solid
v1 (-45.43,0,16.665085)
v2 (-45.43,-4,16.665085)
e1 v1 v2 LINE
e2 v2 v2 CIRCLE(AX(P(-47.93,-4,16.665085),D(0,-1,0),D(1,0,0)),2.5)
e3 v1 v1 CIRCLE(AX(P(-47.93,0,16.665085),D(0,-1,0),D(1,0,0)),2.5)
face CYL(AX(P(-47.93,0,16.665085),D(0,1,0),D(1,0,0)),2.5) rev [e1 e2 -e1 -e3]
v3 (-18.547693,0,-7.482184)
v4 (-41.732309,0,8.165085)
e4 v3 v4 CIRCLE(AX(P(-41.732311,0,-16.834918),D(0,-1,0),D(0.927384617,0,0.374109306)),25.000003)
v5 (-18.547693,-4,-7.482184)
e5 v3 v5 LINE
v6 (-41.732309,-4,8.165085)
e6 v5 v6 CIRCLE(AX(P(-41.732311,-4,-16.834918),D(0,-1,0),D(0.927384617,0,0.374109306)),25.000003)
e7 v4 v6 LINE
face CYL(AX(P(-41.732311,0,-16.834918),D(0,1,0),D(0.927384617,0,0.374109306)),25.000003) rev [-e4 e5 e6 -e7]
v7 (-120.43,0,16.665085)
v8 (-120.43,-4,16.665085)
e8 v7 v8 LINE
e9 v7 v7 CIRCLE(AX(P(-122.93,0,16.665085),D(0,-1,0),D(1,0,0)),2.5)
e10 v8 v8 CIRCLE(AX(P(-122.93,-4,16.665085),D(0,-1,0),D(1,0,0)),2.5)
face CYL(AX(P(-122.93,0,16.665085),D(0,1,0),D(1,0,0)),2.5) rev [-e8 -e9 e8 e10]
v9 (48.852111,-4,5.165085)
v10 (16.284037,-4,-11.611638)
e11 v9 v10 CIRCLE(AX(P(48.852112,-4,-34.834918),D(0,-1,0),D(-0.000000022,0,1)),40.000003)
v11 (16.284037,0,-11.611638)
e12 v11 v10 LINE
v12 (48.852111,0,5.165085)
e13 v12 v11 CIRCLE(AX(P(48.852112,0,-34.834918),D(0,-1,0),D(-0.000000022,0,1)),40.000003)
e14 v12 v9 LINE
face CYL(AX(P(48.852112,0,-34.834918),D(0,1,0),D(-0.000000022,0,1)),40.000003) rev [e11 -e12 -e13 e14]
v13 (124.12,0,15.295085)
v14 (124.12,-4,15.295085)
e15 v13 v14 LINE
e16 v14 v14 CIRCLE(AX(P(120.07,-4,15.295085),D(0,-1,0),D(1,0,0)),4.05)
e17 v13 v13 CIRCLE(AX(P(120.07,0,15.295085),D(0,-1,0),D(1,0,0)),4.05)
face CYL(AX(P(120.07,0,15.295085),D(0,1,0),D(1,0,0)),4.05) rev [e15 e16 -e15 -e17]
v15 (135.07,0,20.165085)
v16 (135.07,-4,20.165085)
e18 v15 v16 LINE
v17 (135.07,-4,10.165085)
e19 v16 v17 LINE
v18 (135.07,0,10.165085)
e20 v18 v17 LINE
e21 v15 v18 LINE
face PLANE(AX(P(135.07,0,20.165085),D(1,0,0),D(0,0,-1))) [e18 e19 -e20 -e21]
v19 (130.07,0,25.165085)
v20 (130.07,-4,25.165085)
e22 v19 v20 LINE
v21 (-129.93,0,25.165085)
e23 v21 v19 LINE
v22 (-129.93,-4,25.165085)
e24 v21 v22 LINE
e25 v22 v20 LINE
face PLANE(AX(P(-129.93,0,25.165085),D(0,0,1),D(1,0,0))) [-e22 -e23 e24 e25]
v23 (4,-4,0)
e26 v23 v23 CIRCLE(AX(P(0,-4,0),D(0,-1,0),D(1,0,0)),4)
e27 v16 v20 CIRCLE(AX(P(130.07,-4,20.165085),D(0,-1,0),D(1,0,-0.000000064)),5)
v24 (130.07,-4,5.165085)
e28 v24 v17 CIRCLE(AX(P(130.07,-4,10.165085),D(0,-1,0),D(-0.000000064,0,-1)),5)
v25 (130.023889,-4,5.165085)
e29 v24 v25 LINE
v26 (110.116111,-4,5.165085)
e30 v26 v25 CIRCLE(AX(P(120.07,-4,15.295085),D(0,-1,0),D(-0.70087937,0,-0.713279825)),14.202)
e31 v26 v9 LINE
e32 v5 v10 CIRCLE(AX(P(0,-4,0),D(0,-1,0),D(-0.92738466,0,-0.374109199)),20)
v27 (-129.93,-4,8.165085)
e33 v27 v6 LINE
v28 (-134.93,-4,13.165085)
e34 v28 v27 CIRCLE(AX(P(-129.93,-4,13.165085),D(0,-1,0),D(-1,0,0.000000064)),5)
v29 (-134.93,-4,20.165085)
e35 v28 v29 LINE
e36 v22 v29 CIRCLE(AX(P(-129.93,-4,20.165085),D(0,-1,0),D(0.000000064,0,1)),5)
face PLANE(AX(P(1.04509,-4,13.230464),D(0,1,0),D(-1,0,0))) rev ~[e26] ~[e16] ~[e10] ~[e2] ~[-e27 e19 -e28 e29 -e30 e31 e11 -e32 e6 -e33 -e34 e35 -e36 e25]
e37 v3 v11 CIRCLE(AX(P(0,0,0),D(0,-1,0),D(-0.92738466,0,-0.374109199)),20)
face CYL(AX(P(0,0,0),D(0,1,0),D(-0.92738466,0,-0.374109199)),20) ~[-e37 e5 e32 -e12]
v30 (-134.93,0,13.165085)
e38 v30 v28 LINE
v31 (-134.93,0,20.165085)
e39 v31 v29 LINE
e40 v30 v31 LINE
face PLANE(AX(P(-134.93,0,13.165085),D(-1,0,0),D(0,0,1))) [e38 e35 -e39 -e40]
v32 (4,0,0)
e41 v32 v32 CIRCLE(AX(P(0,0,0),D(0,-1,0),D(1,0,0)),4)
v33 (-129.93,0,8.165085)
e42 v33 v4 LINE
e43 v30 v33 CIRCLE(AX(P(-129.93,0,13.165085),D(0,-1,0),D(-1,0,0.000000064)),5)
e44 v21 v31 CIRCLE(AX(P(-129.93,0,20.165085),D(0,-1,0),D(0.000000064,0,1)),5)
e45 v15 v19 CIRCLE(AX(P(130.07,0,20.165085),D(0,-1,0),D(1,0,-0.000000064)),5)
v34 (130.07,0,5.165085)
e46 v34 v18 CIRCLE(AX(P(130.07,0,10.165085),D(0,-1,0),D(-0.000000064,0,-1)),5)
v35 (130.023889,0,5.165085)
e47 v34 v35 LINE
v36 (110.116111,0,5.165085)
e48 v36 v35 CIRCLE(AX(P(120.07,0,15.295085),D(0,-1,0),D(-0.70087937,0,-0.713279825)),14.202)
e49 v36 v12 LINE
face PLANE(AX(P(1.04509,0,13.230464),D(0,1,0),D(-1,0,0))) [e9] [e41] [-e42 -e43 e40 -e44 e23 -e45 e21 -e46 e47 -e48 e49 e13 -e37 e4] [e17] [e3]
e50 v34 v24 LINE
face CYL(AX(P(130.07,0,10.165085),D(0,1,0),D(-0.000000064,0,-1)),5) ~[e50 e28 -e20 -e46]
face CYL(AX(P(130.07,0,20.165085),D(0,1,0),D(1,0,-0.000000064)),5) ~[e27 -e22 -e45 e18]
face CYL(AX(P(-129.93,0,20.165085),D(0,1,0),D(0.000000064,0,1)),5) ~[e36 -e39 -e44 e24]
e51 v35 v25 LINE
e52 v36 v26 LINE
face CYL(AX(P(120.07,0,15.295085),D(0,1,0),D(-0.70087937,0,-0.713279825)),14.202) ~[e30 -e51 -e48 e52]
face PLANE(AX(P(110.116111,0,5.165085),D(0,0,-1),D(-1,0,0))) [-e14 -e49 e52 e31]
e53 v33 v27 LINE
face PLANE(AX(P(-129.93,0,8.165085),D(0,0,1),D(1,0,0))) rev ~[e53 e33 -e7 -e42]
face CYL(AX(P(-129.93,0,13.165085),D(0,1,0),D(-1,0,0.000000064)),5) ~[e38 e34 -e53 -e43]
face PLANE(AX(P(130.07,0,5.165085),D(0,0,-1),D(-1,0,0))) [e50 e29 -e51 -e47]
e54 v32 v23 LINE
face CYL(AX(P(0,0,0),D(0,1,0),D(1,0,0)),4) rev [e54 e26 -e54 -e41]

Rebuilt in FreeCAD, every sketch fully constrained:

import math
import FreeCAD as App
import Part
import Sketcher

doc = App.newDocument("Part")
body = doc.addObject("PartDesign::Body", "Body")

# Sketch on XZ plane
sketch1 = body.newObject("Sketcher::SketchObject", "Sketch")
sketch1.AttachmentSupport = (doc.getObject("XZ_Plane"), [""])
sketch1.MapMode = "FlatFace"
sketch1.addGeometry([
    Part.LineSegment(App.Vector(-134.93, 20.165, 0), App.Vector(-134.93, 13.165, 0)),  # 0
    Part.ArcOfCircle(Part.Circle(App.Vector(-129.93, 13.165, 0), App.Vector(0, 0, 1), 5), math.radians(180), math.radians(270)),  # 1
    Part.LineSegment(App.Vector(-129.93, 8.165, 0), App.Vector(-41.732, 8.165, 0)),  # 2
    Part.ArcOfCircle(Part.Circle(App.Vector(-41.732, -16.835, 0), App.Vector(0, 0, 1), 25), math.radians(22), math.radians(90)),  # 3
    Part.ArcOfCircle(Part.Circle(App.Vector(0, 0, 0), App.Vector(0, 0, 1), 20), math.radians(-158), math.radians(-35)),  # 4
    Part.ArcOfCircle(Part.Circle(App.Vector(48.852, -34.835, 0), App.Vector(0, 0, 1), 40), math.radians(90), math.radians(145)),  # 5
    Part.LineSegment(App.Vector(48.852, 5.165, 0), App.Vector(110.116, 5.165, 0)),  # 6
    Part.ArcOfCircle(Part.Circle(App.Vector(120.07, 15.295, 0), App.Vector(0, 0, 1), 14.202), math.radians(-134), math.radians(-46)),  # 7
    Part.LineSegment(App.Vector(130.024, 5.165, 0), App.Vector(130.07, 5.165, 0)),  # 8
    Part.ArcOfCircle(Part.Circle(App.Vector(130.07, 10.165, 0), App.Vector(0, 0, 1), 5), math.radians(-90), math.radians(0)),  # 9
    Part.LineSegment(App.Vector(135.07, 10.165, 0), App.Vector(135.07, 20.165, 0)),  # 10
    Part.ArcOfCircle(Part.Circle(App.Vector(130.07, 20.165, 0), App.Vector(0, 0, 1), 5), math.radians(0), math.radians(90)),  # 11
    Part.LineSegment(App.Vector(130.07, 25.165, 0), App.Vector(-129.93, 25.165, 0)),  # 12
    Part.ArcOfCircle(Part.Circle(App.Vector(-129.93, 20.165, 0), App.Vector(0, 0, 1), 5), math.radians(90), math.radians(180)),  # 13
    Part.Circle(App.Vector(0, 0, 0), App.Vector(0, 0, 1), 4),  # 14
    Part.Circle(App.Vector(120.07, 15.295, 0), App.Vector(0, 0, 1), 4.05),  # 15
    Part.Circle(App.Vector(-47.93, 16.665, 0), App.Vector(0, 0, 1), 2.5),  # 16
    Part.Circle(App.Vector(-122.93, 16.665, 0), App.Vector(0, 0, 1), 2.5),  # 17
], False)
sketch1.addConstraint([
    Sketcher.Constraint("Tangent", 0, 2, 1, 1),
    Sketcher.Constraint("Tangent", 1, 2, 2, 1),
    Sketcher.Constraint("Tangent", 2, 2, 3, 2),
    Sketcher.Constraint("Tangent", 3, 1, 4, 1),
    Sketcher.Constraint("Tangent", 4, 2, 5, 2),
    Sketcher.Constraint("Tangent", 5, 1, 6, 1),
    Sketcher.Constraint("Coincident", 6, 2, 7, 1),
    Sketcher.Constraint("Coincident", 7, 2, 8, 1),
    Sketcher.Constraint("Tangent", 8, 2, 9, 1),
    Sketcher.Constraint("Tangent", 9, 2, 10, 1),
    Sketcher.Constraint("Tangent", 10, 2, 11, 1),
    Sketcher.Constraint("Tangent", 11, 2, 12, 1),
    Sketcher.Constraint("Tangent", 12, 2, 13, 1),
    Sketcher.Constraint("Tangent", 13, 2, 0, 1),
    Sketcher.Constraint("Vertical", 0),
    Sketcher.Constraint("Horizontal", 2),
    Sketcher.Constraint("Horizontal", 6),
    Sketcher.Constraint("Horizontal", 8),
    Sketcher.Constraint("Vertical", 10),
    Sketcher.Constraint("Horizontal", 12),
    Sketcher.Constraint("Coincident", 4, 3, -1, 1),
    Sketcher.Constraint("Coincident", 14, 3, -1, 1),
    Sketcher.Constraint("Coincident", 15, 3, 7, 3),
    Sketcher.Constraint("Equal", 1, 9),
    Sketcher.Constraint("Equal", 9, 11),
    Sketcher.Constraint("Equal", 11, 13),
    Sketcher.Constraint("Equal", 16, 17),
    Sketcher.Constraint("Horizontal", 16, 3, 17, 3),
    Sketcher.Constraint("Horizontal", 6, 2, 7, 2),
    Sketcher.Constraint("Diameter", 14, 8.0),
    Sketcher.Constraint("Diameter", 16, 5.0),
    Sketcher.Constraint("Radius", 1, 5.0),
    Sketcher.Constraint("Radius", 4, 20.0),
    Sketcher.Constraint("Diameter", 15, 8.1),
    Sketcher.Constraint("DistanceX", 12, 2, 12, 1, 260.0),
    Sketcher.Constraint("DistanceY", 0, 2, 0, 1, 7.0),
    Sketcher.Constraint("DistanceY", 10, 1, 10, 2, 10.0),
    Sketcher.Constraint("Radius", 7, 14.202),
    Sketcher.Constraint("DistanceY", 5, 3, 3, 3, 18.0),
    Sketcher.Constraint("DistanceX", 1, 3, 7, 3, 250.0),
    Sketcher.Constraint("DistanceX", 1, 3, 16, 3, 82.0),
    Sketcher.Constraint("DistanceX", 13, 3, 17, 3, 7.0),
    Sketcher.Constraint("DistanceY", 1, 3, 16, 3, 3.5),
    Sketcher.Constraint("DistanceX", 6, 1, 6, 2, 61.264),
    Sketcher.Constraint("DistanceX", 1, 3, -1, 1, 129.93),
    Sketcher.Constraint("DistanceY", 1, 3, 7, 3, 2.130001),
    Sketcher.Constraint("Radius", 3, 25.000003),
])
pad1 = body.newObject("PartDesign::Pad", "Pad")
pad1.Profile = sketch1
pad1.Length = 4

doc.recompute()
